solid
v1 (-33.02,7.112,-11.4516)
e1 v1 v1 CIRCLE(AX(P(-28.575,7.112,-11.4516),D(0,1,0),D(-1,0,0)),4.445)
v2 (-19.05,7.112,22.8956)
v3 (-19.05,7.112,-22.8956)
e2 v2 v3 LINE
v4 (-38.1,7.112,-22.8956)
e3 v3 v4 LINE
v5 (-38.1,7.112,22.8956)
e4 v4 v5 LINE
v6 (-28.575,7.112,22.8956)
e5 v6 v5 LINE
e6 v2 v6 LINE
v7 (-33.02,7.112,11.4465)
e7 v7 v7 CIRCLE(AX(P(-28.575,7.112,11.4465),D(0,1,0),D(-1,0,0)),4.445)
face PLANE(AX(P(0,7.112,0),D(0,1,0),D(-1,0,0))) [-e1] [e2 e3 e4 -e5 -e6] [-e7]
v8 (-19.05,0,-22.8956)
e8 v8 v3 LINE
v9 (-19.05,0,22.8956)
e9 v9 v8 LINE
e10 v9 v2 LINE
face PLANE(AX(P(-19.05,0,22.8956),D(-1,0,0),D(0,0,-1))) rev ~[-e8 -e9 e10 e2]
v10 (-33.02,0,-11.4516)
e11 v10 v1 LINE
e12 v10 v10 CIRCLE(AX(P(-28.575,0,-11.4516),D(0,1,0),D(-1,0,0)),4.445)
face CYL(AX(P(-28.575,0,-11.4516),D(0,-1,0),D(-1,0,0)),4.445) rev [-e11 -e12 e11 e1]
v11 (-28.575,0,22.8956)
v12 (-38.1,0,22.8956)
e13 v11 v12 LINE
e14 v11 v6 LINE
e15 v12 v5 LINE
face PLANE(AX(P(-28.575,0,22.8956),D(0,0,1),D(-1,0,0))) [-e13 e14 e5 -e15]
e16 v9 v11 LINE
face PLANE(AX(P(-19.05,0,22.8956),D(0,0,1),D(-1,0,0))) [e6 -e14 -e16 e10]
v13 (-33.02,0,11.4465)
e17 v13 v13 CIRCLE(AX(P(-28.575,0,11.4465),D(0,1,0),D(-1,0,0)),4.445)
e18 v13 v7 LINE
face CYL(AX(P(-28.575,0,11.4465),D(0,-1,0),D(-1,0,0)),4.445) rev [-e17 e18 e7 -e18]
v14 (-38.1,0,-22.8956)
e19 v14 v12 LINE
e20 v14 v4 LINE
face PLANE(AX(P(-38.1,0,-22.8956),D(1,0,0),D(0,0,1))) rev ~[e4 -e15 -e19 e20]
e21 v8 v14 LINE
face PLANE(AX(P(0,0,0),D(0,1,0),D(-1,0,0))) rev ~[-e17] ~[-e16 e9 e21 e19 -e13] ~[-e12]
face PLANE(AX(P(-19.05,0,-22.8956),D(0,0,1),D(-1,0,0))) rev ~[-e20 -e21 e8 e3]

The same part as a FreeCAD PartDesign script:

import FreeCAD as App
import Part
import Sketcher
Q = App.Units.Quantity

doc = App.newDocument("Part")
body = doc.addObject("PartDesign::Body", "Body")

# Sketch on XZ plane
sketch1 = body.newObject("Sketcher::SketchObject", "Sketch")
sketch1.AttachmentSupport = (doc.getObject("XZ_Plane"), [""])
sketch1.MapMode = "FlatFace"
sketch1.addGeometry(Part.LineSegment(App.Vector(-38.1, 22.9, 0), App.Vector(-19.1, 22.9, 0)), False)
sketch1.addGeometry(Part.LineSegment(App.Vector(-19.1, 22.9, 0), App.Vector(-19.1, -22.9, 0)), False)
sketch1.addGeometry(Part.LineSegment(App.Vector(-19.1, -22.9, 0), App.Vector(-38.1, -22.9, 0)), False)
sketch1.addGeometry(Part.LineSegment(App.Vector(-38.1, -22.9, 0), App.Vector(-38.1, 22.9, 0)), False)
sketch1.addGeometry(Part.Circle(App.Vector(-28.6, -11.5, 0), App.Vector(0, 0, 1), 4.4), False)
sketch1.addGeometry(Part.Circle(App.Vector(-28.6, 11.4, 0), App.Vector(0, 0, 1), 4.4), False)
sketch1.addConstraint(Sketcher.Constraint("Coincident", 0, 2, 1, 1))
sketch1.addConstraint(Sketcher.Constraint("Coincident", 1, 2, 2, 1))
sketch1.addConstraint(Sketcher.Constraint("Coincident", 2, 2, 3, 1))
sketch1.addConstraint(Sketcher.Constraint("Coincident", 3, 2, 0, 1))
sketch1.addConstraint(Sketcher.Constraint("Horizontal", 0))
sketch1.addConstraint(Sketcher.Constraint("Vertical", 1))
sketch1.addConstraint(Sketcher.Constraint("Horizontal", 2))
sketch1.addConstraint(Sketcher.Constraint("Vertical", 3))
sketch1.addConstraint(Sketcher.Constraint("Equal", 4, 5))
sketch1.addConstraint(Sketcher.Constraint("Vertical", 4, 3, 5, 3))
sketch1.addConstraint(Sketcher.Constraint("Diameter", 4, Q("0.35 in")))
sketch1.addConstraint(Sketcher.Constraint("DistanceX", 0, 1, 0, 2, Q("0.75 in")))
sketch1.addConstraint(Sketcher.Constraint("DistanceX", 0, 2, -1, 1, Q("0.75 in")))
sketch1.addConstraint(Sketcher.Constraint("DistanceY", 1, 2, 1, 1, Q("1.8028 in")))
sketch1.addConstraint(Sketcher.Constraint("DistanceX", 5, 3, 0, 2, Q("0.375 in")))
sketch1.addConstraint(Sketcher.Constraint("DistanceY", -1, 1, 0, 2, Q("0.9014 in")))
sketch1.addConstraint(Sketcher.Constraint("DistanceY", 4, 3, 5, 3, Q("0.9015 in")))
sketch1.addConstraint(Sketcher.Constraint("DistanceY", 4, 3, -1, 1, 11.4516))
pad1 = body.newObject("PartDesign::Pad", "Pad")
pad1.Profile = sketch1
pad1.Length = Q("0.28 in")
pad1.Reversed = True

doc.recompute()
